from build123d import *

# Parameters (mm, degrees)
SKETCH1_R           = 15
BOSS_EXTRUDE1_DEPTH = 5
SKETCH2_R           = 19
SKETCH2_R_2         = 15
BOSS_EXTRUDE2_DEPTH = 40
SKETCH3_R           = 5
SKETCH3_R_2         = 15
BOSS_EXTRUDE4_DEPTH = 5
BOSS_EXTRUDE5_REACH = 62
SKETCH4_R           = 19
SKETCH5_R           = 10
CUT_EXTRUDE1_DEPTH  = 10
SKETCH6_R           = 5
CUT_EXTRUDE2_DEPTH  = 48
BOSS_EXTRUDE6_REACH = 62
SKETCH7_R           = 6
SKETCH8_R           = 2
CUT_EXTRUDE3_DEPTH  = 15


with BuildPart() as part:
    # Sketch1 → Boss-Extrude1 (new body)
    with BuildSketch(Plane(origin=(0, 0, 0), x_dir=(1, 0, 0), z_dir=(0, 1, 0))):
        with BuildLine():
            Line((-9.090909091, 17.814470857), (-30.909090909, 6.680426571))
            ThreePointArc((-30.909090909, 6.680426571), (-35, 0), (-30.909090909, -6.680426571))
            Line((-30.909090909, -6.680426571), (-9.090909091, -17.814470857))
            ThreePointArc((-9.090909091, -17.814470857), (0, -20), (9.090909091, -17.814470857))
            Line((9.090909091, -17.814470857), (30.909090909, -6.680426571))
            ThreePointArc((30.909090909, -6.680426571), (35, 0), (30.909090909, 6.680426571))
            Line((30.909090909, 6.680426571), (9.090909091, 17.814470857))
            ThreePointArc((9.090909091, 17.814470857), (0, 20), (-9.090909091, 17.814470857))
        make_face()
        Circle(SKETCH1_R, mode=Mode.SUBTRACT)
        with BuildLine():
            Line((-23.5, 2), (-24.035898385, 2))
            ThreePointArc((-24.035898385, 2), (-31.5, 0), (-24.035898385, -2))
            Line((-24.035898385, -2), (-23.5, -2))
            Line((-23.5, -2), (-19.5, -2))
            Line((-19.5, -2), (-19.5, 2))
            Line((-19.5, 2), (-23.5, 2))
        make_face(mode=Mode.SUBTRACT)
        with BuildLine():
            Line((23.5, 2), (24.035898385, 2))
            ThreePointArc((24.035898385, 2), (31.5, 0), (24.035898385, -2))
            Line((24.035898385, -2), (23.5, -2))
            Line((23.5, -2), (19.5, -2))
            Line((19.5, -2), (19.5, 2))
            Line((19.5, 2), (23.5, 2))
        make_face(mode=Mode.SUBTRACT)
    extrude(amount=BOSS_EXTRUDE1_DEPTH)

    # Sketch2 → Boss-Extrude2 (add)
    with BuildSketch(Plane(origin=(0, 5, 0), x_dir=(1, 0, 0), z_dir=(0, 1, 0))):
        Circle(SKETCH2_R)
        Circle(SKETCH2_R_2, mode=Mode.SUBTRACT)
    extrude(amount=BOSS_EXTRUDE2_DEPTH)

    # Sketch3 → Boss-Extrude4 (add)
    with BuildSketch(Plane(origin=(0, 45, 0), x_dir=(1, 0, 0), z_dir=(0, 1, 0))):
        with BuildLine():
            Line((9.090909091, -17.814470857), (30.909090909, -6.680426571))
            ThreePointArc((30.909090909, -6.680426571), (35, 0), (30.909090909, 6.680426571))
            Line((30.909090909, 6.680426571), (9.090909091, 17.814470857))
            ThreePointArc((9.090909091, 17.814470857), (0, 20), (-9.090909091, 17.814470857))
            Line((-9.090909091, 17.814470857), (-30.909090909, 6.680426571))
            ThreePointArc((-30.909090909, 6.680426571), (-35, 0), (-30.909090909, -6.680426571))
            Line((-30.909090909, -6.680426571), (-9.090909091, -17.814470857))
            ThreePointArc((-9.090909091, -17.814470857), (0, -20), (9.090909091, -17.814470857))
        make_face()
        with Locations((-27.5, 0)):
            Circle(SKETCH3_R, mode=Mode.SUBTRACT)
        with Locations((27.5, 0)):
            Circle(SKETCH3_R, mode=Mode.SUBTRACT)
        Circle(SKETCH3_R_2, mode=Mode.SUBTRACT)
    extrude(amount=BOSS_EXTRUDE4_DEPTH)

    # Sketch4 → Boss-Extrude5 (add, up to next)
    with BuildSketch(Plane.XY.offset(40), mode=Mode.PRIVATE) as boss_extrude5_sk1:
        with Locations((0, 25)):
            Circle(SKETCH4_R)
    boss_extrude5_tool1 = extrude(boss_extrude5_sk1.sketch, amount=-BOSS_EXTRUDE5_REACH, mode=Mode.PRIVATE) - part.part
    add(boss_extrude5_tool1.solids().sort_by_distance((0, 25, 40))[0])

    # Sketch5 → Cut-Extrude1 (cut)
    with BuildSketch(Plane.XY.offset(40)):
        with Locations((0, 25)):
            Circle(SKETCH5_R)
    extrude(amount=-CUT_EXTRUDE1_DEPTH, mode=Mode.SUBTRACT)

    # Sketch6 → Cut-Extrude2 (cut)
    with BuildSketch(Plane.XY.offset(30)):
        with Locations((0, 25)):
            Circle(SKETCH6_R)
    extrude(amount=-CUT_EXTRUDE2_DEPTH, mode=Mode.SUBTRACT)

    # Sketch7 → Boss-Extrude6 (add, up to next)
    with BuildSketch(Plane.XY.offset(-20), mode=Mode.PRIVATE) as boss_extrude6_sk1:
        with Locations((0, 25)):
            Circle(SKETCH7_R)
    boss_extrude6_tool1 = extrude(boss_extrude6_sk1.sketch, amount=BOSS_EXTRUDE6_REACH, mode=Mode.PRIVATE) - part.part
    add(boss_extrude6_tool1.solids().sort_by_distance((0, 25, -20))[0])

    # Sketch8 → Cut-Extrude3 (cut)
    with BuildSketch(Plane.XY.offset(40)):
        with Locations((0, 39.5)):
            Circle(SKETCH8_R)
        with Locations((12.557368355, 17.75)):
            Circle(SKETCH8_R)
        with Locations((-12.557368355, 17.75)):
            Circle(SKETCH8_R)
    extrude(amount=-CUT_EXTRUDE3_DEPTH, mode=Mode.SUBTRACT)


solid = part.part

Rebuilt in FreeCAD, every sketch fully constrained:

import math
import FreeCAD as App
import Part
import Sketcher
from FreeCAD import Vector
Q = App.Units.Quantity

doc = App.newDocument("Part")
body = doc.addObject("PartDesign::Body", "Body")

# Sketch on XZ plane
sketch1 = body.newObject("Sketcher::SketchObject", "Sketch")
sketch1.AttachmentSupport = (doc.getObject("XZ_Plane"), [""])
sketch1.MapMode = "FlatFace"
sketch1.addGeometry([
    Part.LineSegment(Vector(-9.090909, -17.814471, 0), Vector(-30.909091, -6.680427, 0)),  # 0
    Part.ArcOfCircle(Part.Circle(Vector(-27.5, 0, 0), Vector(0, 0, 1), 7.5), math.radians(117.035692), math.radians(242.964308)),  # 1
    Part.LineSegment(Vector(-30.909091, 6.680427, 0), Vector(-9.090909, 17.814471, 0)),  # 2
    Part.ArcOfCircle(Part.Circle(Vector(0, 0, 0), Vector(0, 0, 1), 20), math.radians(62.964308), math.radians(117.035692)),  # 3
    Part.LineSegment(Vector(9.090909, 17.814471, 0), Vector(30.909091, 6.680427, 0)),  # 4
    Part.ArcOfCircle(Part.Circle(Vector(27.5, 0, 0), Vector(0, 0, 1), 7.5), math.radians(-62.964308), math.radians(62.964308)),  # 5
    Part.LineSegment(Vector(30.909091, -6.680427, 0), Vector(9.090909, -17.814471, 0)),  # 6
    Part.ArcOfCircle(Part.Circle(Vector(0, 0, 0), Vector(0, 0, 1), 20), math.radians(-117.035692), math.radians(-62.964308)),  # 7
    Part.ArcOfCircle(Part.Circle(Vector(-27.5, 0, 0), Vector(0, 0, 1), 4), math.radians(30), math.radians(330)),  # 8
    Part.LineSegment(Vector(-24.035898, -2, 0), Vector(-19.5, -2, 0)),  # 9
    Part.LineSegment(Vector(-19.5, -2, 0), Vector(-19.5, 2, 0)),  # 10
    Part.LineSegment(Vector(-19.5, 2, 0), Vector(-24.035898, 2, 0)),  # 11
    Part.Circle(Vector(0, 0, 0), Vector(0, 0, 1), 15),  # 12
    Part.LineSegment(Vector(19.5, -2, 0), Vector(24.035898, -2, 0)),  # 13
    Part.ArcOfCircle(Part.Circle(Vector(27.5, 0, 0), Vector(0, 0, 1), 4), math.radians(-150), math.radians(150)),  # 14
    Part.LineSegment(Vector(24.035898, 2, 0), Vector(19.5, 2, 0)),  # 15
    Part.LineSegment(Vector(19.5, 2, 0), Vector(19.5, -2, 0)),  # 16
], False)
sketch1.addConstraint([
    Sketcher.Constraint("Tangent", 0, 2, 1, 2),
    Sketcher.Constraint("Tangent", 1, 1, 2, 1),
    Sketcher.Constraint("Tangent", 2, 2, 3, 2),
    Sketcher.Constraint("Tangent", 3, 1, 4, 1),
    Sketcher.Constraint("Tangent", 4, 2, 5, 2),
    Sketcher.Constraint("Tangent", 5, 1, 6, 1),
    Sketcher.Constraint("Tangent", 6, 2, 7, 2),
    Sketcher.Constraint("Tangent", 7, 1, 0, 1),
    Sketcher.Constraint("Coincident", 8, 2, 9, 1),
    Sketcher.Constraint("Coincident", 9, 2, 10, 1),
    Sketcher.Constraint("Coincident", 10, 2, 11, 1),
    Sketcher.Constraint("Coincident", 11, 2, 8, 1),
    Sketcher.Constraint("Coincident", 13, 2, 14, 1),
    Sketcher.Constraint("Coincident", 14, 2, 15, 1),
    Sketcher.Constraint("Coincident", 15, 2, 16, 1),
    Sketcher.Constraint("Coincident", 16, 2, 13, 1),
    Sketcher.Constraint("Horizontal", 9),
    Sketcher.Constraint("Vertical", 10),
    Sketcher.Constraint("Horizontal", 11),
    Sketcher.Constraint("Horizontal", 13),
    Sketcher.Constraint("Horizontal", 15),
    Sketcher.Constraint("Vertical", 16),
    Sketcher.Constraint("Coincident", 3, 3, -1, 1),
    Sketcher.Constraint("Coincident", 7, 3, -1, 1),
    Sketcher.Constraint("Coincident", 12, 3, -1, 1),
    Sketcher.Constraint("Coincident", 8, 3, 1, 3),
    Sketcher.Constraint("Coincident", 14, 3, 5, 3),
    Sketcher.Constraint("Equal", 1, 5),
    Sketcher.Constraint("Equal", 3, 7),
    Sketcher.Constraint("Equal", 8, 14),
    Sketcher.Constraint("Symmetric", 1, 3, 5, 3, -1, 1),
    Sketcher.Constraint("Symmetric", 9, 2, 15, 2, -1, 1),
    Sketcher.Constraint("Symmetric", 8, 2, 13, 2, -2),
    Sketcher.Constraint("Horizontal", 11, 2, 14, 2),
    Sketcher.Constraint("Diameter", 12, Q("30 mm")),
    Sketcher.Constraint("Radius", 3, Q("20 mm")),
    Sketcher.Constraint("Radius", 8, Q("4 mm")),
    Sketcher.Constraint("Radius", 1, Q("7.5 mm")),
    Sketcher.Constraint("DistanceY", 10, 1, 10, 2, Q("4 mm")),
    Sketcher.Constraint("DistanceX", 1, 3, 5, 3, Q("55 mm")),
    Sketcher.Constraint("DistanceX", 1, 3, 9, 2, Q("8 mm")),
])
pad1 = body.newObject("PartDesign::Pad", "Pad")
pad1.Profile = sketch1
pad1.Length = 5
pad1.Reversed = True

# Sketch on XZ plane
sketch2 = body.newObject("Sketcher::SketchObject", "Sketch001")
sketch2.AttachmentSupport = (doc.getObject("XZ_Plane"), [""])
sketch2.MapMode = "FlatFace"
sketch2.AttachmentOffset = App.Placement(Vector(0, 0, -5), App.Rotation())
sketch2.addGeometry([
    Part.Circle(Vector(0, 0, 0), Vector(0, 0, 1), 19),
    Part.Circle(Vector(0, 0, 0), Vector(0, 0, 1), 15),
], False)
sketch2.addConstraint([
    Sketcher.Constraint("Coincident", 0, 3, -1, 1),
    Sketcher.Constraint("Coincident", 1, 3, -1, 1),
    Sketcher.Constraint("Diameter", 0, Q("38 mm")),
    Sketcher.Constraint("Diameter", 1, Q("30 mm")),
])
pad2 = body.newObject("PartDesign::Pad", "Pad001")
pad2.Profile = sketch2
pad2.Length = 40
pad2.Reversed = True

# Sketch on XZ plane
sketch3 = body.newObject("Sketcher::SketchObject", "Sketch002")
sketch3.AttachmentSupport = (doc.getObject("XZ_Plane"), [""])
sketch3.MapMode = "FlatFace"
sketch3.AttachmentOffset = App.Placement(Vector(0, 0, -45), App.Rotation())
sketch3.addGeometry([
    Part.LineSegment(Vector(9.090909, 17.814471, 0), Vector(30.909091, 6.680427, 0)),  # 0
    Part.ArcOfCircle(Part.Circle(Vector(27.5, 0, 0), Vector(0, 0, 1), 7.5), math.radians(-62.964308), math.radians(62.964308)),  # 1
    Part.LineSegment(Vector(30.909091, -6.680427, 0), Vector(9.090909, -17.814471, 0)),  # 2
    Part.ArcOfCircle(Part.Circle(Vector(0, 0, 0), Vector(0, 0, 1), 20), math.radians(-117.035692), math.radians(-62.964308)),  # 3
    Part.LineSegment(Vector(-9.090909, -17.814471, 0), Vector(-30.909091, -6.680427, 0)),  # 4
    Part.ArcOfCircle(Part.Circle(Vector(-27.5, 0, 0), Vector(0, 0, 1), 7.5), math.radians(117.035692), math.radians(242.964308)),  # 5
    Part.LineSegment(Vector(-30.909091, 6.680427, 0), Vector(-9.090909, 17.814471, 0)),  # 6
    Part.ArcOfCircle(Part.Circle(Vector(0, 0, 0), Vector(0, 0, 1), 20), math.radians(62.964308), math.radians(117.035692)),  # 7
    Part.Circle(Vector(-27.5, 0, 0), Vector(0, 0, 1), 5),  # 8
    Part.Circle(Vector(0, 0, 0), Vector(0, 0, 1), 15),  # 9
    Part.Circle(Vector(27.5, 0, 0), Vector(0, 0, 1), 5),  # 10
], False)
sketch3.addConstraint([
    Sketcher.Constraint("Tangent", 0, 2, 1, 2),
    Sketcher.Constraint("Tangent", 1, 1, 2, 1),
    Sketcher.Constraint("Tangent", 2, 2, 3, 2),
    Sketcher.Constraint("Tangent", 3, 1, 4, 1),
    Sketcher.Constraint("Tangent", 4, 2, 5, 2),
    Sketcher.Constraint("Tangent", 5, 1, 6, 1),
    Sketcher.Constraint("Tangent", 6, 2, 7, 2),
    Sketcher.Constraint("Tangent", 7, 1, 0, 1),
    Sketcher.Constraint("Coincident", 3, 3, -1, 1),
    Sketcher.Constraint("Coincident", 7, 3, -1, 1),
    Sketcher.Constraint("Coincident", 9, 3, -1, 1),
    Sketcher.Constraint("Coincident", 8, 3, 5, 3),
    Sketcher.Constraint("Coincident", 10, 3, 1, 3),
    Sketcher.Constraint("Equal", 1, 5),
    Sketcher.Constraint("Equal", 3, 7),
    Sketcher.Constraint("Equal", 8, 10),
    Sketcher.Constraint("Symmetric", 1, 3, 5, 3, -1, 1),
    Sketcher.Constraint("PointOnObject", 1, 3, -1),
    Sketcher.Constraint("Diameter", 8, Q("10 mm")),
    Sketcher.Constraint("Diameter", 9, Q("30 mm")),
    Sketcher.Constraint("Radius", 3, Q("20 mm")),
    Sketcher.Constraint("Radius", 1, Q("7.5 mm")),
    Sketcher.Constraint("DistanceX", 5, 3, 1, 3, Q("55 mm")),
])
pad3 = body.newObject("PartDesign::Pad", "Pad002")
pad3.Profile = sketch3
pad3.Length = 5
pad3.Reversed = True

# Sketch on XY plane
sketch4 = body.newObject("Sketcher::SketchObject", "Sketch003")
sketch4.AttachmentSupport = (doc.getObject("XY_Plane"), [""])
sketch4.MapMode = "FlatFace"
sketch4.AttachmentOffset = App.Placement(Vector(0, 0, 40), App.Rotation())
sketch4.addGeometry(Part.Circle(Vector(0, 25, 0), Vector(0, 0, 1), 19), False)
sketch4.addConstraint([
    Sketcher.Constraint("PointOnObject", 0, 3, -2),
    Sketcher.Constraint("Diameter", 0, Q("38 mm")),
    Sketcher.Constraint("DistanceY", -1, 1, 0, 3, Q("25 mm")),
])
pad4 = body.newObject("PartDesign::Pad", "Pad003")
pad4.Profile = sketch4
pad4.Type = "UpToFirst"
pad4.Reversed = True

# Sketch on XY plane
sketch5 = body.newObject("Sketcher::SketchObject", "Sketch004")
sketch5.AttachmentSupport = (doc.getObject("XY_Plane"), [""])
sketch5.MapMode = "FlatFace"
sketch5.AttachmentOffset = App.Placement(Vector(0, 0, 40), App.Rotation())
sketch5.addGeometry(Part.Circle(Vector(0, 25, 0), Vector(0, 0, 1), 10), False)
sketch5.addConstraint([
    Sketcher.Constraint("PointOnObject", 0, 3, -2),
    Sketcher.Constraint("Diameter", 0, Q("20 mm")),
    Sketcher.Constraint("DistanceY", -1, 1, 0, 3, Q("25 mm")),
])
pocket1 = body.newObject("PartDesign::Pocket", "Pocket")
pocket1.Profile = sketch5
pocket1.Length = 10

# Sketch on XY plane
sketch6 = body.newObject("Sketcher::SketchObject", "Sketch005")
sketch6.AttachmentSupport = (doc.getObject("XY_Plane"), [""])
sketch6.MapMode = "FlatFace"
sketch6.AttachmentOffset = App.Placement(Vector(0, 0, 30), App.Rotation())
sketch6.addGeometry(Part.Circle(Vector(0, 25, 0), Vector(0, 0, 1), 5), False)
sketch6.addConstraint([
    Sketcher.Constraint("PointOnObject", 0, 3, -2),
    Sketcher.Constraint("Diameter", 0, Q("10 mm")),
    Sketcher.Constraint("DistanceY", -1, 1, 0, 3, Q("25 mm")),
])
pocket2 = body.newObject("PartDesign::Pocket", "Pocket001")
pocket2.Profile = sketch6
pocket2.Length = 48

# Sketch on XY plane
sketch7 = body.newObject("Sketcher::SketchObject", "Sketch006")
sketch7.AttachmentSupport = (doc.getObject("XY_Plane"), [""])
sketch7.MapMode = "FlatFace"
sketch7.AttachmentOffset = App.Placement(Vector(0, 0, -20), App.Rotation())
sketch7.addGeometry(Part.Circle(Vector(0, 25, 0), Vector(0, 0, 1), 6), False)
sketch7.addConstraint([
    Sketcher.Constraint("PointOnObject", 0, 3, -2),
    Sketcher.Constraint("Diameter", 0, Q("12 mm")),
    Sketcher.Constraint("DistanceY", -1, 1, 0, 3, Q("25 mm")),
])
pad5 = body.newObject("PartDesign::Pad", "Pad004")
pad5.Profile = sketch7
pad5.Type = "UpToFirst"

# Sketch on XY plane
sketch8 = body.newObject("Sketcher::SketchObject", "Sketch007")
sketch8.AttachmentSupport = (doc.getObject("XY_Plane"), [""])
sketch8.MapMode = "FlatFace"
sketch8.AttachmentOffset = App.Placement(Vector(0, 0, 40), App.Rotation())
sketch8.addGeometry([
    Part.Circle(Vector(0, 39.5, 0), Vector(0, 0, 1), 2),
    Part.Circle(Vector(12.557368, 17.75, 0), Vector(0, 0, 1), 2),
    Part.Circle(Vector(-12.557368, 17.75, 0), Vector(0, 0, 1), 2),
], False)
sketch8.addConstraint([
    Sketcher.Constraint("Equal", 0, 1),
    Sketcher.Constraint("Equal", 1, 2),
    Sketcher.Constraint("Symmetric", 1, 3, 2, 3, -2),
    Sketcher.Constraint("PointOnObject", 0, 3, -2),
    Sketcher.Constraint("Diameter", 0, Q("4 mm")),
    Sketcher.Constraint("DistanceY", -1, 1, 0, 3, Q("39.5 mm")),
    Sketcher.Constraint("DistanceY", -1, 1, 1, 3, Q("17.75 mm")),
    Sketcher.Constraint("DistanceX", -1, 1, 1, 3, Q("12.557368 mm")),
])
pocket3 = body.newObject("PartDesign::Pocket", "Pocket002")
pocket3.Profile = sketch8
pocket3.Length = 15

doc.recompute()
